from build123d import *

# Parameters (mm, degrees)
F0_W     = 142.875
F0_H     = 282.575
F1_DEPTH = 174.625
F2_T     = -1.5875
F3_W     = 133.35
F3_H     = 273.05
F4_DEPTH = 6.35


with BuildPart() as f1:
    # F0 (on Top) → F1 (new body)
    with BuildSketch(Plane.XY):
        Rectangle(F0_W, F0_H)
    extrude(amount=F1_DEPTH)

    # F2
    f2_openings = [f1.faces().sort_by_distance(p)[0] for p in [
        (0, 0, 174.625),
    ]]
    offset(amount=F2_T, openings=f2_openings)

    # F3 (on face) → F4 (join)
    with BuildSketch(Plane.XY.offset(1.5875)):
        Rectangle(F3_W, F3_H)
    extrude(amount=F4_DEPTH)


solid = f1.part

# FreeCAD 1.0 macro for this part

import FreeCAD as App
import Part
import Sketcher
Q = App.Units.Quantity


def faces_at(feature, points):
    """Names of the faces that lie closest to the given points."""
    faces = feature.Shape.Faces
    near = lambda p: min(range(len(faces)), key=lambda i: faces[i].distToShape(Part.Vertex(*p))[0])
    return sorted({f"Face{near(p) + 1}" for p in points})


def add_polygon(sketch, points):
    """Adds a closed chain of lines whose ends are joined by coincident constraints."""
    first, n = sketch.GeometryCount, len(points)
    for a, b in zip(points, points[1:] + points[:1]):
        sketch.addGeometry(Part.LineSegment(App.Vector(*a, 0), App.Vector(*b, 0)), False)
    for i in range(n):
        sketch.addConstraint(Sketcher.Constraint("Coincident", first + i, 2, first + (i + 1) % n, 1))

doc = App.newDocument("Part")
body = doc.addObject("PartDesign::Body", "Body")

sketch1 = body.newObject("Sketcher::SketchObject", "Sketch")
sketch1.AttachmentSupport = (doc.getObject("XY_Plane"), [""])
sketch1.MapMode = "FlatFace"
add_polygon(sketch1, [(-71, 141), (-71, -141), (71, -141), (71, 141)])
sketch1.addConstraint(Sketcher.Constraint("Vertical", 0))
sketch1.addConstraint(Sketcher.Constraint("Horizontal", 1))
sketch1.addConstraint(Sketcher.Constraint("Vertical", 2))
sketch1.addConstraint(Sketcher.Constraint("Horizontal", 3))
sketch1.addConstraint(Sketcher.Constraint("Symmetric", 0, 2, 2, 2, -1, 1))
sketch1.addConstraint(Sketcher.Constraint("DistanceX", 1, 1, 1, 2, Q("5.625 in")))
sketch1.addConstraint(Sketcher.Constraint("DistanceY", 0, 2, 0, 1, Q("11.125 in")))
pad1 = body.newObject("PartDesign::Pad", "Pad")
pad1.Profile = sketch1
pad1.Length = Q("6.875 in")
doc.recompute()

thickness = body.newObject("PartDesign::Thickness", "Thickness")
thickness.Base = (pad1, faces_at(pad1, [(0, 0, 174.625)]))
thickness.Value = Q("0.0625 in")
thickness.Reversed = True
thickness.Join = "Arc"

sketch2 = body.newObject("Sketcher::SketchObject", "Sketch001")
sketch2.AttachmentSupport = (doc.getObject("XY_Plane"), [""])
sketch2.MapMode = "FlatFace"
sketch2.AttachmentOffset = App.Placement(App.Vector(0, 0, 0.0625 * 25.4), App.Rotation())
add_polygon(sketch2, [(-67, 137), (-67, -137), (67, -137), (67, 137)])
sketch2.addConstraint(Sketcher.Constraint("Vertical", 0))
sketch2.addConstraint(Sketcher.Constraint("Horizontal", 1))
sketch2.addConstraint(Sketcher.Constraint("Vertical", 2))
sketch2.addConstraint(Sketcher.Constraint("Horizontal", 3))
sketch2.addConstraint(Sketcher.Constraint("Symmetric", 0, 2, 2, 2, -1, 1))
sketch2.addConstraint(Sketcher.Constraint("DistanceX", 1, 1, 1, 2, Q("5.25 in")))
sketch2.addConstraint(Sketcher.Constraint("DistanceY", 0, 2, 0, 1, Q("10.75 in")))
pad2 = body.newObject("PartDesign::Pad", "Pad001")
pad2.Profile = sketch2
pad2.Length = Q("0.25 in")

doc.recompute()
